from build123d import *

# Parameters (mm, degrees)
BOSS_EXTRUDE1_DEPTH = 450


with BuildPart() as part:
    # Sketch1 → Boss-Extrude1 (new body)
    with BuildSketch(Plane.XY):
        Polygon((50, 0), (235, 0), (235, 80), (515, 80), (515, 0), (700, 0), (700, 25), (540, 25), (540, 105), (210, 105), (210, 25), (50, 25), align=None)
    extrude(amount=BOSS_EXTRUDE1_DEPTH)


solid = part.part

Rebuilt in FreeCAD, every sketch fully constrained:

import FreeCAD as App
import Part
import Sketcher
from FreeCAD import Vector

doc = App.newDocument("Part")
params = doc.addObject("Spreadsheet::Sheet", "Params")
for row, (alias, value) in enumerate([
    ("sketch1_width", "185 mm"),
    ("sketch1_width2", "280 mm"),
    ("sketch1_width3", "160 mm"),
    ("sketch1_height", "80 mm"),
    ("sketch1_height2", "25 mm"),
    ("pad1_length", "450 mm"),
], start=1):
    params.set(f"A{row}", alias)
    params.set(f"B{row}", "=" + value)
    params.setAlias(f"B{row}", alias)

body = doc.addObject("PartDesign::Body", "Body")

sketch1 = doc.addObject("Sketcher::SketchObject", "Sketch")
body.addObject(sketch1)
sketch1.AttachmentSupport = (doc.XY_Plane, [""])
sketch1.MapMode = "FlatFace"
sketch1.addGeometry([
    Part.LineSegment(Vector(50, 0, 0), Vector(235, 0, 0)),
    Part.LineSegment(Vector(235, 0, 0), Vector(235, 80, 0)),
    Part.LineSegment(Vector(235, 80, 0), Vector(515, 80, 0)),
    Part.LineSegment(Vector(515, 80, 0), Vector(515, 0, 0)),
    Part.LineSegment(Vector(515, 0, 0), Vector(700, 0, 0)),
    Part.LineSegment(Vector(700, 0, 0), Vector(700, 25, 0)),
    Part.LineSegment(Vector(700, 25, 0), Vector(540, 25, 0)),
    Part.LineSegment(Vector(540, 25, 0), Vector(540, 105, 0)),
    Part.LineSegment(Vector(540, 105, 0), Vector(210, 105, 0)),
    Part.LineSegment(Vector(210, 105, 0), Vector(210, 25, 0)),
    Part.LineSegment(Vector(210, 25, 0), Vector(50, 25, 0)),
    Part.LineSegment(Vector(50, 25, 0), Vector(50, 0, 0)),
], False)
sketch1.addConstraint([
    Sketcher.Constraint("Coincident", 0, 2, 1, 1),
    Sketcher.Constraint("Coincident", 1, 2, 2, 1),
    Sketcher.Constraint("Coincident", 2, 2, 3, 1),
    Sketcher.Constraint("Coincident", 3, 2, 4, 1),
    Sketcher.Constraint("Coincident", 4, 2, 5, 1),
    Sketcher.Constraint("Coincident", 5, 2, 6, 1),
    Sketcher.Constraint("Coincident", 6, 2, 7, 1),
    Sketcher.Constraint("Coincident", 7, 2, 8, 1),
    Sketcher.Constraint("Coincident", 8, 2, 9, 1),
    Sketcher.Constraint("Coincident", 9, 2, 10, 1),
    Sketcher.Constraint("Coincident", 10, 2, 11, 1),
    Sketcher.Constraint("Coincident", 11, 2, 0, 1),
    Sketcher.Constraint("Horizontal", 0),
    Sketcher.Constraint("Vertical", 1),
    Sketcher.Constraint("Horizontal", 2),
    Sketcher.Constraint("Vertical", 3),
    Sketcher.Constraint("Horizontal", 4),
    Sketcher.Constraint("Vertical", 5),
    Sketcher.Constraint("Horizontal", 6),
    Sketcher.Constraint("Vertical", 7),
    Sketcher.Constraint("Horizontal", 8),
    Sketcher.Constraint("Vertical", 9),
    Sketcher.Constraint("Horizontal", 10),
    Sketcher.Constraint("Vertical", 11),
    Sketcher.Constraint("PointOnObject", 0, 2, -1),
    Sketcher.Constraint("PointOnObject", 3, 2, -1),
    Sketcher.Constraint("Horizontal", 6, 2, 9, 2),
    Sketcher.Constraint("Equal", 0, 4),
    Sketcher.Constraint("Equal", 6, 10),
    Sketcher.Constraint("Equal", 3, 7),
    Sketcher.Constraint("DistanceX", 0, 1, 0, 2, 185.0),
    Sketcher.Constraint("DistanceX", 2, 1, 2, 2, 280.0),
    Sketcher.Constraint("DistanceX", 6, 2, 6, 1, 160.0),
    Sketcher.Constraint("DistanceY", 1, 1, 1, 2, 80.0),
    Sketcher.Constraint("DistanceY", 5, 1, 5, 2, 25.0),
    Sketcher.Constraint("DistanceX", -1, 1, 0, 2, 235.0),
])
sketch1.setExpression("Constraints[30]", "Params.sketch1_width")
sketch1.setExpression("Constraints[31]", "Params.sketch1_width2")
sketch1.setExpression("Constraints[32]", "Params.sketch1_width3")
sketch1.setExpression("Constraints[33]", "Params.sketch1_height")
sketch1.setExpression("Constraints[34]", "Params.sketch1_height2")
pad1 = doc.addObject("PartDesign::Pad", "Pad")
body.addObject(pad1)
pad1.Profile = sketch1
pad1.setExpression("Length", "Params.pad1_length")

doc.recompute()
